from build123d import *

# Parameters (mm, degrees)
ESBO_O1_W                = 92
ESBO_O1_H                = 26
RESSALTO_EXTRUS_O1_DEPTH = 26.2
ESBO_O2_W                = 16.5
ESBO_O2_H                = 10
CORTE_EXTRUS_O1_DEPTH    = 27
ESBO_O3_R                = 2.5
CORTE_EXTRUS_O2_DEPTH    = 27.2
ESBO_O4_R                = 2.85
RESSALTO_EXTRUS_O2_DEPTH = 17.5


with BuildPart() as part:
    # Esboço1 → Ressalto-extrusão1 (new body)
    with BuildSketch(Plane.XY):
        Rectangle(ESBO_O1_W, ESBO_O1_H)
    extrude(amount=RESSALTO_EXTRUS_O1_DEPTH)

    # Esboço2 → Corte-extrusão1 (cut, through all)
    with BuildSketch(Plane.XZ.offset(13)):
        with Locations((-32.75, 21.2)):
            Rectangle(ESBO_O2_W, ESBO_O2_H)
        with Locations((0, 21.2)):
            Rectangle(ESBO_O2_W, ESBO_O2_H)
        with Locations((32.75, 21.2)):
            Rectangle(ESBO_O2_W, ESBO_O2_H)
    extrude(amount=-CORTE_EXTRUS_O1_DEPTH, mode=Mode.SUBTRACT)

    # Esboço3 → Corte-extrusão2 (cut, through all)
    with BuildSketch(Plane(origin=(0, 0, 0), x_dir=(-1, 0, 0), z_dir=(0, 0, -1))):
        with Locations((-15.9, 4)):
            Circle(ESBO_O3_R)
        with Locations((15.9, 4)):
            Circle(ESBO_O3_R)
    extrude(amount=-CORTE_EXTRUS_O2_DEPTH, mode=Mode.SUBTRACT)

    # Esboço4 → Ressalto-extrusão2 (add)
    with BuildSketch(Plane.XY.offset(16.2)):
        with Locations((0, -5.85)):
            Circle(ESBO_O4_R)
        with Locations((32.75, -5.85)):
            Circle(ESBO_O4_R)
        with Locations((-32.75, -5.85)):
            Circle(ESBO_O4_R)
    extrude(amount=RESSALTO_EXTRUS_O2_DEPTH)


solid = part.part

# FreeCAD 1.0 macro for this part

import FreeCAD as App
import Part
import Sketcher

doc = App.newDocument("Part")
params = doc.addObject("Spreadsheet::Sheet", "Params")
for row, (alias, value) in enumerate([
    ("sketch1_width", "92 mm"),
    ("sketch1_height", "26 mm"),
    ("pad1_length", "26.2 mm"),
    ("sketch2_height", "10 mm"),
    ("sketch2_width", "16.5 mm"),
    ("sketch3_diameter", "5 mm"),
    ("sketch4_diameter", "5.7 mm"),
    ("pad2_length", "17.5 mm"),
], start=1):
    params.set(f"A{row}", alias)
    params.set(f"B{row}", "=" + value)
    params.setAlias(f"B{row}", alias)

body = doc.addObject("PartDesign::Body", "Body")

sketch1 = body.newObject("Sketcher::SketchObject", "Sketch")
sketch1.AttachmentSupport = (doc.getObject("XY_Plane"), [""])
sketch1.MapMode = "FlatFace"
sketch1.addGeometry([
    Part.LineSegment(App.Vector(-46, 13, 0), App.Vector(-46, -13, 0)),
    Part.LineSegment(App.Vector(-46, -13, 0), App.Vector(46, -13, 0)),
    Part.LineSegment(App.Vector(46, -13, 0), App.Vector(46, 13, 0)),
    Part.LineSegment(App.Vector(46, 13, 0), App.Vector(-46, 13, 0)),
], False)
sketch1.addConstraint([
    Sketcher.Constraint("Coincident", 0, 2, 1, 1),
    Sketcher.Constraint("Coincident", 1, 2, 2, 1),
    Sketcher.Constraint("Coincident", 2, 2, 3, 1),
    Sketcher.Constraint("Coincident", 3, 2, 0, 1),
    Sketcher.Constraint("Vertical", 0),
    Sketcher.Constraint("Horizontal", 1),
    Sketcher.Constraint("Vertical", 2),
    Sketcher.Constraint("Horizontal", 3),
    Sketcher.Constraint("Symmetric", 0, 2, 2, 2, -1, 1),
    Sketcher.Constraint("DistanceX", 1, 1, 1, 2, 92.0),
    Sketcher.Constraint("DistanceY", 0, 2, 0, 1, 26.0),
])
sketch1.setExpression("Constraints[9]", "Params.sketch1_width")
sketch1.setExpression("Constraints[10]", "Params.sketch1_height")
pad1 = body.newObject("PartDesign::Pad", "Pad")
pad1.Profile = sketch1
pad1.setExpression("Length", "Params.pad1_length")

sketch2 = body.newObject("Sketcher::SketchObject", "Sketch001")
sketch2.AttachmentSupport = (doc.getObject("XZ_Plane"), [""])
sketch2.MapMode = "FlatFace"
sketch2.AttachmentOffset = App.Placement(App.Vector(0, 0, 13), App.Rotation())
sketch2.addGeometry([
    Part.LineSegment(App.Vector(-41, 26, 0), App.Vector(-41, 16, 0)),
    Part.LineSegment(App.Vector(-41, 16, 0), App.Vector(-24, 16, 0)),
    Part.LineSegment(App.Vector(-24, 16, 0), App.Vector(-24, 26, 0)),
    Part.LineSegment(App.Vector(-24, 26, 0), App.Vector(-41, 26, 0)),
    Part.LineSegment(App.Vector(-8, 26, 0), App.Vector(-8, 16, 0)),
    Part.LineSegment(App.Vector(-8, 16, 0), App.Vector(8, 16, 0)),
    Part.LineSegment(App.Vector(8, 16, 0), App.Vector(8, 26, 0)),
    Part.LineSegment(App.Vector(8, 26, 0), App.Vector(-8, 26, 0)),
    Part.LineSegment(App.Vector(24, 26, 0), App.Vector(24, 16, 0)),
    Part.LineSegment(App.Vector(24, 16, 0), App.Vector(41, 16, 0)),
    Part.LineSegment(App.Vector(41, 16, 0), App.Vector(41, 26, 0)),
    Part.LineSegment(App.Vector(41, 26, 0), App.Vector(24, 26, 0)),
], False)
sketch2.addConstraint([
    Sketcher.Constraint("Coincident", 0, 2, 1, 1),
    Sketcher.Constraint("Coincident", 1, 2, 2, 1),
    Sketcher.Constraint("Coincident", 2, 2, 3, 1),
    Sketcher.Constraint("Coincident", 3, 2, 0, 1),
    Sketcher.Constraint("Coincident", 4, 2, 5, 1),
    Sketcher.Constraint("Coincident", 5, 2, 6, 1),
    Sketcher.Constraint("Coincident", 6, 2, 7, 1),
    Sketcher.Constraint("Coincident", 7, 2, 4, 1),
    Sketcher.Constraint("Coincident", 8, 2, 9, 1),
    Sketcher.Constraint("Coincident", 9, 2, 10, 1),
    Sketcher.Constraint("Coincident", 10, 2, 11, 1),
    Sketcher.Constraint("Coincident", 11, 2, 8, 1),
    Sketcher.Constraint("Vertical", 0),
    Sketcher.Constraint("Horizontal", 1),
    Sketcher.Constraint("Vertical", 2),
    Sketcher.Constraint("Horizontal", 3),
    Sketcher.Constraint("Vertical", 4),
    Sketcher.Constraint("Horizontal", 5),
    Sketcher.Constraint("Vertical", 6),
    Sketcher.Constraint("Horizontal", 7),
    Sketcher.Constraint("Vertical", 8),
    Sketcher.Constraint("Horizontal", 9),
    Sketcher.Constraint("Vertical", 10),
    Sketcher.Constraint("Horizontal", 11),
    Sketcher.Constraint("Symmetric", 1, 2, 8, 2, -2),
    Sketcher.Constraint("Symmetric", 3, 2, 10, 2, -2),
    Sketcher.Constraint("Horizontal", 1, 2, 4, 2),
    Sketcher.Constraint("Horizontal", 3, 2, 6, 2),
    Sketcher.Constraint("Equal", 3, 5),
    Sketcher.Constraint("DistanceY", 0, 2, 0, 1, 10.0),
    Sketcher.Constraint("DistanceX", 1, 1, 1, 2, 16.5),
    Sketcher.Constraint("DistanceX", 0, 2, -1, 1, 41.0),
    Sketcher.Constraint("DistanceY", -1, 1, 0, 2, 16.2),
    Sketcher.Constraint("DistanceX", 4, 2, -1, 1, 8.25),
])
sketch2.setExpression("Constraints[29]", "Params.sketch2_height")
sketch2.setExpression("Constraints[30]", "Params.sketch2_width")
pocket1 = body.newObject("PartDesign::Pocket", "Pocket")
pocket1.Profile = sketch2
pocket1.Type = "ThroughAll"

sketch3 = body.newObject("Sketcher::SketchObject", "Sketch002")
sketch3.AttachmentSupport = (doc.getObject("XY_Plane"), [""])
sketch3.MapMode = "FlatFace"
sketch3.addGeometry([
    Part.Circle(App.Vector(15.9, 4, 0), App.Vector(0, 0, 1), 2.5),
    Part.Circle(App.Vector(-15.9, 4, 0), App.Vector(0, 0, 1), 2.5),
], False)
sketch3.addConstraint([
    Sketcher.Constraint("Equal", 0, 1),
    Sketcher.Constraint("Symmetric", 0, 3, 1, 3, -2),
    Sketcher.Constraint("Diameter", 0, 5.0),
    Sketcher.Constraint("DistanceY", -1, 1, 0, 3, 4.0),
    Sketcher.Constraint("DistanceX", -1, 1, 0, 3, 15.9),
])
sketch3.setExpression("Constraints[2]", "Params.sketch3_diameter")
pocket2 = body.newObject("PartDesign::Pocket", "Pocket001")
pocket2.Profile = sketch3
pocket2.Type = "ThroughAll"
pocket2.Reversed = True

sketch4 = body.newObject("Sketcher::SketchObject", "Sketch003")
sketch4.AttachmentSupport = (doc.getObject("XY_Plane"), [""])
sketch4.MapMode = "FlatFace"
sketch4.AttachmentOffset = App.Placement(App.Vector(0, 0, 16.2), App.Rotation())
sketch4.addGeometry([
    Part.Circle(App.Vector(0, -5.8, 0), App.Vector(0, 0, 1), 2.9),
    Part.Circle(App.Vector(32.8, -5.8, 0), App.Vector(0, 0, 1), 2.9),
    Part.Circle(App.Vector(-32.8, -5.8, 0), App.Vector(0, 0, 1), 2.9),
], False)
sketch4.addConstraint([
    Sketcher.Constraint("Equal", 0, 1),
    Sketcher.Constraint("Equal", 1, 2),
    Sketcher.Constraint("Symmetric", 1, 3, 2, 3, -2),
    Sketcher.Constraint("PointOnObject", 0, 3, -2),
    Sketcher.Constraint("Horizontal", 0, 3, 1, 3),
    Sketcher.Constraint("Diameter", 0, 5.7),
    Sketcher.Constraint("DistanceX", 2, 3, 1, 3, 65.5),
    Sketcher.Constraint("DistanceY", 0, 3, -1, 1, 5.85),
])
sketch4.setExpression("Constraints[5]", "Params.sketch4_diameter")
pad2 = body.newObject("PartDesign::Pad", "Pad001")
pad2.Profile = sketch4
pad2.setExpression("Length", "Params.pad2_length")

doc.recompute()
